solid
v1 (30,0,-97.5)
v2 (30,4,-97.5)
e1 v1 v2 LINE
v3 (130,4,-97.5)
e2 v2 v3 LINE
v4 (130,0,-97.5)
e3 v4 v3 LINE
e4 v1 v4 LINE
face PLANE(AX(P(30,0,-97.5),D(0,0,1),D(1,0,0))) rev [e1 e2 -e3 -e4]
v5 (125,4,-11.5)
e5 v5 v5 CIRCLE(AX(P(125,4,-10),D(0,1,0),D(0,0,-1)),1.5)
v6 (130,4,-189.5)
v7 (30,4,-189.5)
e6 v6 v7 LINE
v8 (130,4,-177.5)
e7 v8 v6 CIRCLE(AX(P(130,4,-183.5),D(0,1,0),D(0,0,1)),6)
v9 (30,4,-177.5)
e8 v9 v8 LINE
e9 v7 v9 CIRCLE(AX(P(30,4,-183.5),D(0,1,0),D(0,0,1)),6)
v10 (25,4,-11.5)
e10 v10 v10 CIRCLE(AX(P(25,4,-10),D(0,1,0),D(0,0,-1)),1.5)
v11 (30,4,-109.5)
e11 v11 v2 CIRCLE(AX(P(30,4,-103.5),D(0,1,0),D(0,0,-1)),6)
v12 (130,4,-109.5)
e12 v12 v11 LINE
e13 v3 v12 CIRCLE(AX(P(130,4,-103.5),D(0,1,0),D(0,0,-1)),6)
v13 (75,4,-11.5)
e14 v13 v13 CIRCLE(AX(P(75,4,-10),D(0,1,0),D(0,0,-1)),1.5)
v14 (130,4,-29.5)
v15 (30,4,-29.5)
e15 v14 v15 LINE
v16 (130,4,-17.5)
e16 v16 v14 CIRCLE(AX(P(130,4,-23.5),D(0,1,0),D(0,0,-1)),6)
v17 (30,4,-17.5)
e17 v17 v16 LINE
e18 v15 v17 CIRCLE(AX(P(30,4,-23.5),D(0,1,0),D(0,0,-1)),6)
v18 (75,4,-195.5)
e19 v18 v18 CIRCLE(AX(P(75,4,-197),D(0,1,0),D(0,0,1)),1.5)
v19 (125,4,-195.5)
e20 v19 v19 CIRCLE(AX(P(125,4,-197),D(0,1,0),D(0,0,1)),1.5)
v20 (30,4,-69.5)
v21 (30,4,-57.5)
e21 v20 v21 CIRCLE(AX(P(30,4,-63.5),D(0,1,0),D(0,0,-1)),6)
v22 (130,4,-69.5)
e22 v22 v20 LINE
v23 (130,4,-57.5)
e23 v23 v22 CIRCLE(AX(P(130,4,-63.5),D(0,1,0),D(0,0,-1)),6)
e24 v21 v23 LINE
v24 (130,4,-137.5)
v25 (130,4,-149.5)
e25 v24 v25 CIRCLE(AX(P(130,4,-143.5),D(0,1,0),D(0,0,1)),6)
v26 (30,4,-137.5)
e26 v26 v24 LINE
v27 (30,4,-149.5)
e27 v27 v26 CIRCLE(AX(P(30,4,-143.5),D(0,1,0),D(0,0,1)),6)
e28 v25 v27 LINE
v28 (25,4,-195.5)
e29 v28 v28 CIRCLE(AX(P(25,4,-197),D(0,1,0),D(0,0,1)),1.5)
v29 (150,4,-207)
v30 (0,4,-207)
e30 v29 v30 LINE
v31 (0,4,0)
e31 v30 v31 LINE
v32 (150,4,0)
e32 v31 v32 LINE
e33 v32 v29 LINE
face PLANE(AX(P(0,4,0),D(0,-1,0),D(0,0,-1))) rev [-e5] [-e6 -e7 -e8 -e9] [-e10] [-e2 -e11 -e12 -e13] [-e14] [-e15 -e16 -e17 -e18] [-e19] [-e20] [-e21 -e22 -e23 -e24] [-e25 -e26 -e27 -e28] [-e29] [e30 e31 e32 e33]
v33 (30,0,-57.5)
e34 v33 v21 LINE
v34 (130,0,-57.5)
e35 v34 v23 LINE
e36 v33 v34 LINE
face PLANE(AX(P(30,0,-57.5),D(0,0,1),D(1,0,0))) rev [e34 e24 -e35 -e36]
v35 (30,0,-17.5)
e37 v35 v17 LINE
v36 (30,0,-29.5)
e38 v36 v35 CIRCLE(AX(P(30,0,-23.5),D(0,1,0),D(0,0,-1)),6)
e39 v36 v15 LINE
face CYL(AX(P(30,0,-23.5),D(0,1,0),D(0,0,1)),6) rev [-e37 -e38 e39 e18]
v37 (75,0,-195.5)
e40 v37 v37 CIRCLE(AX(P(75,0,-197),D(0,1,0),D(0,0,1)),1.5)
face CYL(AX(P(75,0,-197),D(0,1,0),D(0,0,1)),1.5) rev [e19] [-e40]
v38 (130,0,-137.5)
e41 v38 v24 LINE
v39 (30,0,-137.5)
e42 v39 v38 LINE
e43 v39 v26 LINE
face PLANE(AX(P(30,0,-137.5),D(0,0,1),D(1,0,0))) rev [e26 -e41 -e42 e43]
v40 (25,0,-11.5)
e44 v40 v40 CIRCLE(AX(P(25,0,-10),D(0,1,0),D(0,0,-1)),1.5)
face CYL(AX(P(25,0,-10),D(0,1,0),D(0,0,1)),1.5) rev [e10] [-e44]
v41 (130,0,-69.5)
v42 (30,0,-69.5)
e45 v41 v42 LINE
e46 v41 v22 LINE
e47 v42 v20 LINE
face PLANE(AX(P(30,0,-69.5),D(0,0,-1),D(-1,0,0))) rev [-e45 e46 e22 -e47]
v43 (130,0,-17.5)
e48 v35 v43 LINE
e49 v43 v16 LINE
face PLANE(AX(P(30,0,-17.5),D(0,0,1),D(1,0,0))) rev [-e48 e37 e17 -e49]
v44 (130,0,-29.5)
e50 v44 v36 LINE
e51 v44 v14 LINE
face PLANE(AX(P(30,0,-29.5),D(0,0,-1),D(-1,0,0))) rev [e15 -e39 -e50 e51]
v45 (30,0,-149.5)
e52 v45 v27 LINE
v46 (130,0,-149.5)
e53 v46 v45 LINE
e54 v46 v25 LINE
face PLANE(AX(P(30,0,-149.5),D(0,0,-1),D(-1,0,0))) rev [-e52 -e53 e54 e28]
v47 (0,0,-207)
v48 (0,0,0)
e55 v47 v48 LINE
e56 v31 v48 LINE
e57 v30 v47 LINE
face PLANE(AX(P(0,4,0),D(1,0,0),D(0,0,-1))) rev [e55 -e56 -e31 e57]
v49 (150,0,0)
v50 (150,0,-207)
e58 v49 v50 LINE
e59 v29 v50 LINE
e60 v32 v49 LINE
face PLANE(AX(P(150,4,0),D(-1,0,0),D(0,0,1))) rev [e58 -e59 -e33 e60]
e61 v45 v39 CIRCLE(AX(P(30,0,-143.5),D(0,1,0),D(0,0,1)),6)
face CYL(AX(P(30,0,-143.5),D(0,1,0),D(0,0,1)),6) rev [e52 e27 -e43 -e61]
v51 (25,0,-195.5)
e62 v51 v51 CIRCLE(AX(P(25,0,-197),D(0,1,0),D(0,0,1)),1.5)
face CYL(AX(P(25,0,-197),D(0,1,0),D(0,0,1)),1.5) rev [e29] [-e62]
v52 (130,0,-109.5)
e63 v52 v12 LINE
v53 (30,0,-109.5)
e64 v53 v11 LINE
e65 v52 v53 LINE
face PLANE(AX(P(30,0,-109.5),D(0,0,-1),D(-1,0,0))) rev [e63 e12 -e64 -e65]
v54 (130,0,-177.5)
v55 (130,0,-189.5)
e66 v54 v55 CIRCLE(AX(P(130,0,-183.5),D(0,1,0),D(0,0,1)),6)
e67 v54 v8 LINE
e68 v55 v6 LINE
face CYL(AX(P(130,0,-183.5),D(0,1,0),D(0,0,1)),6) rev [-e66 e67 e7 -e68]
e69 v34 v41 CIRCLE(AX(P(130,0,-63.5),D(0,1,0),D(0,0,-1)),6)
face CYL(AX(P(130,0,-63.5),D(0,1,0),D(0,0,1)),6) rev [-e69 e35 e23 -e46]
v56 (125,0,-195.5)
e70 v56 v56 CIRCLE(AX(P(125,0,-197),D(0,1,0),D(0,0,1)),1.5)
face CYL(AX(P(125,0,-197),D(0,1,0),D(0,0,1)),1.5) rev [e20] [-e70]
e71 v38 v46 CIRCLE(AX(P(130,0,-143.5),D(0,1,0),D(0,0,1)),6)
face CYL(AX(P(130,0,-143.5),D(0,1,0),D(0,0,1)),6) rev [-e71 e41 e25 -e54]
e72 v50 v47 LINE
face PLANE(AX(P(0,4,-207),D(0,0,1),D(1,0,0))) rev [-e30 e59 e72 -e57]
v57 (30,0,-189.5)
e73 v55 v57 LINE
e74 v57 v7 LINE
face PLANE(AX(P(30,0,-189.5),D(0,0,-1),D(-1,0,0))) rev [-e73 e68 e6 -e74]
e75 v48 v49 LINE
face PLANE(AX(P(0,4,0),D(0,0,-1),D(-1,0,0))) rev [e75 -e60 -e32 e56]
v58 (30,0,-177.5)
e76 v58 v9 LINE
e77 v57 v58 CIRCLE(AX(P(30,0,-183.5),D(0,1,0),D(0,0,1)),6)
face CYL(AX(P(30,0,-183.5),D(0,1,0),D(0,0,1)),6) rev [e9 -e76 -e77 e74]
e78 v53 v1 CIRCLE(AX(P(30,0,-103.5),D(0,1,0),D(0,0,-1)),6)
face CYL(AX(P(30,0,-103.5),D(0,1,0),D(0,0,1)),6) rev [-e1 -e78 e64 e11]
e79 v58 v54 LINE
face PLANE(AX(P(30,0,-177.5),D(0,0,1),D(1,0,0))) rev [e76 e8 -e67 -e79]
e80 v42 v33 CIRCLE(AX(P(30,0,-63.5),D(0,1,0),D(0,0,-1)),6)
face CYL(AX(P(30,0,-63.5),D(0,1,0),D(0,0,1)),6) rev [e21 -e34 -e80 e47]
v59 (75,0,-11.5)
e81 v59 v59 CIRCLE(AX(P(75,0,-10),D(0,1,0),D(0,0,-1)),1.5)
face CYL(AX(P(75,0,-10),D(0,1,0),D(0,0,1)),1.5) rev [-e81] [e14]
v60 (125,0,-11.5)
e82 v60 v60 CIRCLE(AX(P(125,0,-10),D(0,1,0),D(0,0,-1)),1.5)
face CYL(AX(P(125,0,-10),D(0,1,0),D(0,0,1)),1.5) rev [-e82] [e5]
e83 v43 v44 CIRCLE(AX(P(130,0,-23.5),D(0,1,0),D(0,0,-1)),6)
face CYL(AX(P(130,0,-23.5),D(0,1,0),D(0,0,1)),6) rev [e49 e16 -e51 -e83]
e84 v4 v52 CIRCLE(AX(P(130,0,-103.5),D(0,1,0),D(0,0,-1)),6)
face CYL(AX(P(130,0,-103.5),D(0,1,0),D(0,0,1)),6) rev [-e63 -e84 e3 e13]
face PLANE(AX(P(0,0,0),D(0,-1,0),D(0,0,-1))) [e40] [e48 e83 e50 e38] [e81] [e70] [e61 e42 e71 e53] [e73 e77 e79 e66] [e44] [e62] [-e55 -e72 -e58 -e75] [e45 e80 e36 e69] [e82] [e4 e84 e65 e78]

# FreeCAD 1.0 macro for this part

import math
import FreeCAD as App
import Part
import Sketcher
Q = App.Units.Quantity


def add_polygon(sketch, points):
    """Adds a closed chain of lines whose ends are joined by coincident constraints."""
    first, n = sketch.GeometryCount, len(points)
    for a, b in zip(points, points[1:] + points[:1]):
        sketch.addGeometry(Part.LineSegment(App.Vector(*a, 0), App.Vector(*b, 0)), False)
    for i in range(n):
        sketch.addConstraint(Sketcher.Constraint("Coincident", first + i, 2, first + (i + 1) % n, 1))

doc = App.newDocument("Part")
body = doc.addObject("PartDesign::Body", "Body")

sketch1 = doc.addObject("Sketcher::SketchObject", "Sketch")
body.addObject(sketch1)
sketch1.AttachmentSupport = (doc.XZ_Plane, [""])
sketch1.MapMode = "FlatFace"
add_polygon(sketch1, [(0, -207), (0, 0), (150, 0), (150, -207)])
sketch1.addConstraint([
    Sketcher.Constraint("Vertical", 0),
    Sketcher.Constraint("Horizontal", 1),
    Sketcher.Constraint("Vertical", 2),
    Sketcher.Constraint("Horizontal", 3),
    Sketcher.Constraint("Coincident", 0, 2, -1, 1),
    Sketcher.Constraint("DistanceX", 1, 1, 1, 2, Q("150 mm")),
    Sketcher.Constraint("DistanceY", 0, 1, 0, 2, Q("207 mm")),
])
pad1 = doc.addObject("PartDesign::Pad", "Pad")
body.addObject(pad1)
pad1.Profile = sketch1
pad1.Length = 4
pad1.Reversed = True

sketch2 = doc.addObject("Sketcher::SketchObject", "Sketch001")
body.addObject(sketch2)
sketch2.AttachmentSupport = (doc.XZ_Plane, [""])
sketch2.MapMode = "FlatFace"
sketch2.AttachmentOffset = App.Placement(App.Vector(0, 0, -4), App.Rotation())
sketch2.addGeometry([
    Part.LineSegment(App.Vector(130, -190, 0), App.Vector(30, -190, 0)),
    Part.ArcOfCircle(Part.Circle(App.Vector(30, -184, 0), App.Vector(0, 0, 1), 6), math.radians(90), math.radians(270)),
    Part.LineSegment(App.Vector(30, -178, 0), App.Vector(130, -178, 0)),
    Part.ArcOfCircle(Part.Circle(App.Vector(130, -184, 0), App.Vector(0, 0, 1), 6), math.radians(-90), math.radians(90)),
    Part.LineSegment(App.Vector(130, -150, 0), App.Vector(30, -150, 0)),
    Part.ArcOfCircle(Part.Circle(App.Vector(30, -144, 0), App.Vector(0, 0, 1), 6), math.radians(90), math.radians(270)),
    Part.LineSegment(App.Vector(30, -138, 0), App.Vector(130, -138, 0)),
    Part.ArcOfCircle(Part.Circle(App.Vector(130, -144, 0), App.Vector(0, 0, 1), 6), math.radians(-90), math.radians(90)),
    Part.LineSegment(App.Vector(30, -98, 0), App.Vector(130, -98, 0)),
    Part.ArcOfCircle(Part.Circle(App.Vector(130, -104, 0), App.Vector(0, 0, 1), 6), math.radians(-90), math.radians(90)),
    Part.LineSegment(App.Vector(130, -110, 0), App.Vector(30, -110, 0)),
    Part.ArcOfCircle(Part.Circle(App.Vector(30, -104, 0), App.Vector(0, 0, 1), 6), math.radians(90), math.radians(270)),
    Part.LineSegment(App.Vector(30, -58, 0), App.Vector(130, -58, 0)),
    Part.ArcOfCircle(Part.Circle(App.Vector(130, -64, 0), App.Vector(0, 0, 1), 6), math.radians(-90), math.radians(90)),
    Part.LineSegment(App.Vector(130, -70, 0), App.Vector(30, -70, 0)),
    Part.ArcOfCircle(Part.Circle(App.Vector(30, -64, 0), App.Vector(0, 0, 1), 6), math.radians(90), math.radians(270)),
    Part.LineSegment(App.Vector(30, -18, 0), App.Vector(130, -18, 0)),
    Part.ArcOfCircle(Part.Circle(App.Vector(130, -24, 0), App.Vector(0, 0, 1), 6), math.radians(-90), math.radians(90)),
    Part.LineSegment(App.Vector(130, -30, 0), App.Vector(30, -30, 0)),
    Part.ArcOfCircle(Part.Circle(App.Vector(30, -24, 0), App.Vector(0, 0, 1), 6), math.radians(90), math.radians(270)),
], False)
sketch2.addConstraint([
    Sketcher.Constraint("Tangent", 0, 2, 1, 2),
    Sketcher.Constraint("Tangent", 1, 1, 2, 1),
    Sketcher.Constraint("Tangent", 2, 2, 3, 2),
    Sketcher.Constraint("Tangent", 3, 1, 0, 1),
    Sketcher.Constraint("Tangent", 4, 2, 5, 2),
    Sketcher.Constraint("Tangent", 5, 1, 6, 1),
    Sketcher.Constraint("Tangent", 6, 2, 7, 2),
    Sketcher.Constraint("Tangent", 7, 1, 4, 1),
    Sketcher.Constraint("Tangent", 8, 2, 9, 2),
    Sketcher.Constraint("Tangent", 9, 1, 10, 1),
    Sketcher.Constraint("Tangent", 10, 2, 11, 2),
    Sketcher.Constraint("Tangent", 11, 1, 8, 1),
    Sketcher.Constraint("Tangent", 12, 2, 13, 2),
    Sketcher.Constraint("Tangent", 13, 1, 14, 1),
    Sketcher.Constraint("Tangent", 14, 2, 15, 2),
    Sketcher.Constraint("Tangent", 15, 1, 12, 1),
    Sketcher.Constraint("Tangent", 16, 2, 17, 2),
    Sketcher.Constraint("Tangent", 17, 1, 18, 1),
    Sketcher.Constraint("Tangent", 18, 2, 19, 2),
    Sketcher.Constraint("Tangent", 19, 1, 16, 1),
    Sketcher.Constraint("Horizontal", 0),
    Sketcher.Constraint("Horizontal", 2),
    Sketcher.Constraint("Horizontal", 4),
    Sketcher.Constraint("Horizontal", 6),
    Sketcher.Constraint("Horizontal", 8),
    Sketcher.Constraint("Horizontal", 10),
    Sketcher.Constraint("Horizontal", 12),
    Sketcher.Constraint("Horizontal", 14),
    Sketcher.Constraint("Horizontal", 16),
    Sketcher.Constraint("Horizontal", 18),
    Sketcher.Constraint("Equal", 3, 5),
    Sketcher.Constraint("Equal", 7, 9),
    Sketcher.Constraint("Equal", 11, 13),
    Sketcher.Constraint("Equal", 15, 17),
    Sketcher.Constraint("Vertical", 1, 3, 5, 3),
    Sketcher.Constraint("Vertical", 3, 3, 7, 3),
    Sketcher.Constraint("Vertical", 7, 3, 9, 3),
    Sketcher.Constraint("Vertical", 5, 3, 11, 3),
    Sketcher.Constraint("Vertical", 9, 3, 13, 3),
    Sketcher.Constraint("Vertical", 11, 3, 15, 3),
    Sketcher.Constraint("Vertical", 13, 3, 17, 3),
    Sketcher.Constraint("Vertical", 15, 3, 19, 3),
    Sketcher.Constraint("Radius", 1, Q("6 mm")),
    Sketcher.Constraint("DistanceX", 0, 2, 0, 1, Q("100 mm")),
    Sketcher.Constraint("DistanceX", -1, 1, 1, 3, Q("30 mm")),
    Sketcher.Constraint("DistanceY", 1, 3, 5, 3, Q("40 mm")),
    Sketcher.Constraint("DistanceY", 7, 3, 9, 3, Q("40 mm")),
    Sketcher.Constraint("DistanceY", 9, 3, 13, 3, Q("40 mm")),
    Sketcher.Constraint("DistanceY", 13, 3, 17, 3, Q("40 mm")),
    Sketcher.Constraint("DistanceY", 1, 3, -1, 1, Q("183.5 mm")),
])
pocket1 = doc.addObject("PartDesign::Pocket", "Pocket")
body.addObject(pocket1)
pocket1.Profile = sketch2
pocket1.Type = "ThroughAll"
pocket1.Reversed = True

sketch3 = doc.addObject("Sketcher::SketchObject", "Sketch002")
body.addObject(sketch3)
sketch3.AttachmentSupport = (doc.XZ_Plane, [""])
sketch3.MapMode = "FlatFace"
sketch3.AttachmentOffset = App.Placement(App.Vector(0, 0, -4), App.Rotation())
sketch3.addGeometry([
    Part.Circle(App.Vector(125, -197, 0), App.Vector(0, 0, 1), 1.5),
    Part.Circle(App.Vector(75, -197, 0), App.Vector(0, 0, 1), 1.5),
    Part.Circle(App.Vector(25, -197, 0), App.Vector(0, 0, 1), 1.5),
    Part.Circle(App.Vector(25, -10, 0), App.Vector(0, 0, 1), 1.5),
    Part.Circle(App.Vector(75, -10, 0), App.Vector(0, 0, 1), 1.5),
    Part.Circle(App.Vector(125, -10, 0), App.Vector(0, 0, 1), 1.5),
], False)
sketch3.addConstraint([
    Sketcher.Constraint("Equal", 0, 1),
    Sketcher.Constraint("Equal", 1, 2),
    Sketcher.Constraint("Equal", 2, 3),
    Sketcher.Constraint("Equal", 3, 4),
    Sketcher.Constraint("Equal", 4, 5),
    Sketcher.Constraint("Horizontal", 0, 3, 1, 3),
    Sketcher.Constraint("Horizontal", 1, 3, 2, 3),
    Sketcher.Constraint("Horizontal", 3, 3, 4, 3),
    Sketcher.Constraint("Horizontal", 4, 3, 5, 3),
    Sketcher.Constraint("Vertical", 2, 3, 3, 3),
    Sketcher.Constraint("Vertical", 1, 3, 4, 3),
    Sketcher.Constraint("Vertical", 0, 3, 5, 3),
    Sketcher.Constraint("Diameter", 0, Q("3 mm")),
    Sketcher.Constraint("DistanceX", -1, 1, 0, 3, Q("125 mm")),
    Sketcher.Constraint("DistanceY", 0, 3, -1, 1, Q("197 mm")),
    Sketcher.Constraint("DistanceX", -1, 1, 1, 3, Q("75 mm")),
    Sketcher.Constraint("DistanceX", -1, 1, 2, 3, Q("25 mm")),
    Sketcher.Constraint("DistanceY", 3, 3, -1, 1, Q("10 mm")),
])
pocket2 = doc.addObject("PartDesign::Pocket", "Pocket001")
body.addObject(pocket2)
pocket2.Profile = sketch3
pocket2.Type = "ThroughAll"
pocket2.Reversed = True

doc.recompute()
